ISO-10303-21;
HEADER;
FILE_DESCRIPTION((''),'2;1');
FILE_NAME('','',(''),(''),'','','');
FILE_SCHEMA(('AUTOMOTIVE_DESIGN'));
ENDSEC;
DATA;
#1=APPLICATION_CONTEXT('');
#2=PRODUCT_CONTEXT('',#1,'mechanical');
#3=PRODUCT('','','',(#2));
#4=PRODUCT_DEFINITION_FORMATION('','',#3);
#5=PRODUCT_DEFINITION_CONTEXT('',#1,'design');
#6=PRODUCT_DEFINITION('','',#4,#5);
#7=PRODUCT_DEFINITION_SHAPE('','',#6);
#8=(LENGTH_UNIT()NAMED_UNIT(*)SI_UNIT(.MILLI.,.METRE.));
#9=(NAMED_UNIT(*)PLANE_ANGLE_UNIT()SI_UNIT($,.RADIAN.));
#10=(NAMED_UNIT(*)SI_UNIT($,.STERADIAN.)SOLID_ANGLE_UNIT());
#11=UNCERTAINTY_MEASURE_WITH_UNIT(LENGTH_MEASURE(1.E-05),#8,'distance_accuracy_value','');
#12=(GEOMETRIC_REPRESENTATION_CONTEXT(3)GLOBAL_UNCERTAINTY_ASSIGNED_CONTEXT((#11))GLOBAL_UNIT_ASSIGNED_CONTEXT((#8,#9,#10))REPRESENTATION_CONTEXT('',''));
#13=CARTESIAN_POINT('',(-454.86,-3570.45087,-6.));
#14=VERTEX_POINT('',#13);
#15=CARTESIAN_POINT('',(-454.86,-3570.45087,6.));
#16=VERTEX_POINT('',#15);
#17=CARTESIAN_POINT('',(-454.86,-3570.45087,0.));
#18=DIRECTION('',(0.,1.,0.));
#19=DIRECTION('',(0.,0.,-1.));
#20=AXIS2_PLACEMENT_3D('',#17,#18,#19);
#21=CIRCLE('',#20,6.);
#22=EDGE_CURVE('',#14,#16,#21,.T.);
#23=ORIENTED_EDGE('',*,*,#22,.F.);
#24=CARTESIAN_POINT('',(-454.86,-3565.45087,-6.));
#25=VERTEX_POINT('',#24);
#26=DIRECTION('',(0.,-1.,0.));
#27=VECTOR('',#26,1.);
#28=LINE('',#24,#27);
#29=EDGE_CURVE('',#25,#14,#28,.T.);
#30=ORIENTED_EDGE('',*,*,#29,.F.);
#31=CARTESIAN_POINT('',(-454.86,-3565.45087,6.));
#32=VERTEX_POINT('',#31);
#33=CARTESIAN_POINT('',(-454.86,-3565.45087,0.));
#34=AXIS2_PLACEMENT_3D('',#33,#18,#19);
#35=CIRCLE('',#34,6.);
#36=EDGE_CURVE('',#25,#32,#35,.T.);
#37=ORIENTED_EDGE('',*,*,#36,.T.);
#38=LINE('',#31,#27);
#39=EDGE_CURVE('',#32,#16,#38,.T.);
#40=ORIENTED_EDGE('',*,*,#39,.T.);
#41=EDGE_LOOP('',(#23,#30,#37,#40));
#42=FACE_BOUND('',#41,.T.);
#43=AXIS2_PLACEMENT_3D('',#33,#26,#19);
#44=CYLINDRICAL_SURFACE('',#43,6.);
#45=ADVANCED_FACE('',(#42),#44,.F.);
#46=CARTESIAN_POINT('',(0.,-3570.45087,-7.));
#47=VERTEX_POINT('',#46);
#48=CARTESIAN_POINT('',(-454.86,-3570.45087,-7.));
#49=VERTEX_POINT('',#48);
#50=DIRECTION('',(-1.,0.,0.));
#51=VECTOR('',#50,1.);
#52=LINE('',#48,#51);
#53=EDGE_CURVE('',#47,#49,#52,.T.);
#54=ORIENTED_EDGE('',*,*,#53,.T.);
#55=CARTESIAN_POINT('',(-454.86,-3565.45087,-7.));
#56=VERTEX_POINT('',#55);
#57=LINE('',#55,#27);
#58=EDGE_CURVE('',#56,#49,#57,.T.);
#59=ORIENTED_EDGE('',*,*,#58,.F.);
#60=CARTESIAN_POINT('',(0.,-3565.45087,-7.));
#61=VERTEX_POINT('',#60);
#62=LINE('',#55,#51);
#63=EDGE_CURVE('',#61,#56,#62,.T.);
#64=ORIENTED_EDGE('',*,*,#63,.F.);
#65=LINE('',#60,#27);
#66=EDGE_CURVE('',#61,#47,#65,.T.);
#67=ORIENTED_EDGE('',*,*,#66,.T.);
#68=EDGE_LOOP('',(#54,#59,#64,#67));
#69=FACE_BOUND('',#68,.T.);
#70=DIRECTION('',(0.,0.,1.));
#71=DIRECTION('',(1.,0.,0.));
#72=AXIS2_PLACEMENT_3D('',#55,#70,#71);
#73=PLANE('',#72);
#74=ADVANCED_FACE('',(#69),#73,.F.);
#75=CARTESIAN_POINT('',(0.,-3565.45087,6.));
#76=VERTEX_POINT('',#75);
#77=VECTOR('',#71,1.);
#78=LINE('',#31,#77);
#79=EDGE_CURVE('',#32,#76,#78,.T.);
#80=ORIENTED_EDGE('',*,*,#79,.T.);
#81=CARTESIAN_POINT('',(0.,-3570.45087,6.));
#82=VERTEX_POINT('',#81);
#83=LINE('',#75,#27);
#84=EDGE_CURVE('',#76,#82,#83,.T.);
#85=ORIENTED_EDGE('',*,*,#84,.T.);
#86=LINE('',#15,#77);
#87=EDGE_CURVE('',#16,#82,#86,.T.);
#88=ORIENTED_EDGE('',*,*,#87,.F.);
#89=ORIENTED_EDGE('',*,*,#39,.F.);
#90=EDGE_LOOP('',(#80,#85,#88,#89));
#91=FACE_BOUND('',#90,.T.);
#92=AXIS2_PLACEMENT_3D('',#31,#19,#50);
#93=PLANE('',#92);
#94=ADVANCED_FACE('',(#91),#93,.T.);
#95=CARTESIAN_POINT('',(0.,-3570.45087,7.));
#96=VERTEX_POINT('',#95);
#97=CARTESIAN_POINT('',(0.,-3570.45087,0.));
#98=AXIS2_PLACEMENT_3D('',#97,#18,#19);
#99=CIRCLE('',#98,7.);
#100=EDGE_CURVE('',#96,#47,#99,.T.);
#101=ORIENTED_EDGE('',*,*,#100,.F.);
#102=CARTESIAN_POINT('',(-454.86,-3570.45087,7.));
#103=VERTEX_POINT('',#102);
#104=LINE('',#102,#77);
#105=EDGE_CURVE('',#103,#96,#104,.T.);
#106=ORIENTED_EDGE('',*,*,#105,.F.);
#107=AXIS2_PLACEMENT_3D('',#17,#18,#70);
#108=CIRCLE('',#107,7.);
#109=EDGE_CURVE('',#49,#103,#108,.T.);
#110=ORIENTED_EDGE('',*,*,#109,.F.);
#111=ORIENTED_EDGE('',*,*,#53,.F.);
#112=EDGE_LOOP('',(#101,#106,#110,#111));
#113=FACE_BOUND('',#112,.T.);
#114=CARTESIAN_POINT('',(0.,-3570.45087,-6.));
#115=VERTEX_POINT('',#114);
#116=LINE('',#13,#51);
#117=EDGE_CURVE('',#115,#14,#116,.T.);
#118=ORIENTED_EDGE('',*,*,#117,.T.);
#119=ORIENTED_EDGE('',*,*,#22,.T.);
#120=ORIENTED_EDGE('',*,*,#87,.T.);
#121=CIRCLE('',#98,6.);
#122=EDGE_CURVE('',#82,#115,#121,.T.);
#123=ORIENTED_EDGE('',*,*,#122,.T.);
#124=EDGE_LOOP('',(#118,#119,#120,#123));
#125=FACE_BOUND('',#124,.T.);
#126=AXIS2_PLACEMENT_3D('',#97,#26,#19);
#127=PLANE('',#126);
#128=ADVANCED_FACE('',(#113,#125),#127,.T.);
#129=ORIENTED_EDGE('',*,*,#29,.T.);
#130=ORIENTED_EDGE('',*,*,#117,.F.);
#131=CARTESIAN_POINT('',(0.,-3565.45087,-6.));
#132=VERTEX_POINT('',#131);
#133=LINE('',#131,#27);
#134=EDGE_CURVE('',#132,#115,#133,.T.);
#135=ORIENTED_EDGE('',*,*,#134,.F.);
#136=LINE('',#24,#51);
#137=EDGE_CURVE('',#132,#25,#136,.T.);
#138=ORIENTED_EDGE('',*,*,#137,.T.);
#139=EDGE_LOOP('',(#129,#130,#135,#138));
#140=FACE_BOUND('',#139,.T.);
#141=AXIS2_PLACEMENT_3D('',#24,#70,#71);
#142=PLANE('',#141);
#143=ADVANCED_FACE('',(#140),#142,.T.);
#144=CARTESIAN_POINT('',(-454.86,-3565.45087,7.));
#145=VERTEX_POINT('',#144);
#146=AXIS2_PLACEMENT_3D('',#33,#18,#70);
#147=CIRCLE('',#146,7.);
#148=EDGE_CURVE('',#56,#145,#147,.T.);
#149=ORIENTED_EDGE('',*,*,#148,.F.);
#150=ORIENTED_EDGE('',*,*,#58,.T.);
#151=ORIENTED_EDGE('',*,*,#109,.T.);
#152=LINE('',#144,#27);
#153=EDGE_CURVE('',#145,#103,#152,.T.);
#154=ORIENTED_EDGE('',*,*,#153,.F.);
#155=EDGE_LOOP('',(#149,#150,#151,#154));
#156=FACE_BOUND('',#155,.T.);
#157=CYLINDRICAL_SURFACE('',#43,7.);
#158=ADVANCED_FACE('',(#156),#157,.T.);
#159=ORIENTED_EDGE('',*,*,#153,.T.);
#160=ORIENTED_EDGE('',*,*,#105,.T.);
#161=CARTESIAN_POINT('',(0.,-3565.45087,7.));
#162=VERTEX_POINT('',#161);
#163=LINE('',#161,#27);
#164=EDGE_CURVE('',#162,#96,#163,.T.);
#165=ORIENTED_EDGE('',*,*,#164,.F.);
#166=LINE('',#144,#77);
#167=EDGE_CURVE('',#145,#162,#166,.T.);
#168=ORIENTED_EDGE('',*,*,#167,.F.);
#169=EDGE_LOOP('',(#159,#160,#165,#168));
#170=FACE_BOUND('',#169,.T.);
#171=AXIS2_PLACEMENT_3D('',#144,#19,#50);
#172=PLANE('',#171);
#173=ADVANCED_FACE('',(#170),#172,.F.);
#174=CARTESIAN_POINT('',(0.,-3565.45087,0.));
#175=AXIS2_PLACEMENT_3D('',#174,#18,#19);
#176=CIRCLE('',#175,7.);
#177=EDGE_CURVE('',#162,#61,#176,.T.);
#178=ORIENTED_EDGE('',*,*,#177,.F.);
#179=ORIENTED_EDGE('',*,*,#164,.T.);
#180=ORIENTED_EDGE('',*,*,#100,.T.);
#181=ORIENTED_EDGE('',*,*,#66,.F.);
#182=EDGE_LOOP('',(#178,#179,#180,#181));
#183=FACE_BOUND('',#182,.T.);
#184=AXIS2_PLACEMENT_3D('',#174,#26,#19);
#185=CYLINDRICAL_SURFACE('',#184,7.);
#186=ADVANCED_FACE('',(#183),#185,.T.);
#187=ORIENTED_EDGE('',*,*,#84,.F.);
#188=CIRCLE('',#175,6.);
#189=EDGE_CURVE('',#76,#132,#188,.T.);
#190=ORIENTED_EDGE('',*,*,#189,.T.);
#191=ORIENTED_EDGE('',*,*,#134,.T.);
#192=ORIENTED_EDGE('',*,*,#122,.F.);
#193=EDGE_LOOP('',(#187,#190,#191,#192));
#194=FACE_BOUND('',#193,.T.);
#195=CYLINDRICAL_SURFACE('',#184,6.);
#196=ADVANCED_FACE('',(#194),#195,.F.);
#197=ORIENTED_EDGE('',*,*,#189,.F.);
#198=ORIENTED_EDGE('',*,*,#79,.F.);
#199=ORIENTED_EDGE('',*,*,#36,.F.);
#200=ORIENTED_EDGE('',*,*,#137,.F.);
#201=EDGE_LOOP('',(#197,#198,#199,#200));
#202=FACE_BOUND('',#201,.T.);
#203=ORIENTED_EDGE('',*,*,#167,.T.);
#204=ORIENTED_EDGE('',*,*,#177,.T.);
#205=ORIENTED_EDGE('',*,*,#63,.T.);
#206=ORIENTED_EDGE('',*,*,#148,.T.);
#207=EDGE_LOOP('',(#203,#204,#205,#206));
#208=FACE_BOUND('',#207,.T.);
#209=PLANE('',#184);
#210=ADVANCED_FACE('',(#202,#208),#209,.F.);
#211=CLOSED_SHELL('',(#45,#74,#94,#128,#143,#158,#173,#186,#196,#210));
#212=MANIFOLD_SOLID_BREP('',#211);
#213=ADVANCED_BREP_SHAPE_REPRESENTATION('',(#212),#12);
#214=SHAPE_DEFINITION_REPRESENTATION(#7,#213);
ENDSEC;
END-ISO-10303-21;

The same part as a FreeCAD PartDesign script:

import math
import FreeCAD as App
import Part
import Sketcher
from FreeCAD import Vector
Q = App.Units.Quantity

doc = App.newDocument("Part")
body = doc.addObject("PartDesign::Body", "Body")

sketch1 = body.newObject("Sketcher::SketchObject", "Sketch")
sketch1.AttachmentSupport = (doc.getObject("XZ_Plane"), [""])
sketch1.MapMode = "FlatFace"
sketch1.AttachmentOffset = App.Placement(Vector(0, 0, 3570.45087), App.Rotation())
sketch1.addGeometry([
    Part.LineSegment(Vector(-455, 7, 0), Vector(0, 7, 0)),
    Part.ArcOfCircle(Part.Circle(Vector(0, 0, 0), Vector(0, 0, 1), 7), math.radians(-90), math.radians(90)),
    Part.LineSegment(Vector(0, -7, 0), Vector(-455, -7, 0)),
    Part.ArcOfCircle(Part.Circle(Vector(-455, 0, 0), Vector(0, 0, 1), 7), math.radians(90), math.radians(270)),
    Part.LineSegment(Vector(0, 6, 0), Vector(-455, 6, 0)),
    Part.ArcOfCircle(Part.Circle(Vector(-455, 0, 0), Vector(0, 0, 1), 6), math.radians(90), math.radians(270)),
    Part.LineSegment(Vector(-455, -6, 0), Vector(0, -6, 0)),
    Part.ArcOfCircle(Part.Circle(Vector(0, 0, 0), Vector(0, 0, 1), 6), math.radians(-90), math.radians(90)),
], False)
sketch1.addConstraint([
    Sketcher.Constraint("Tangent", 0, 2, 1, 2),
    Sketcher.Constraint("Tangent", 1, 1, 2, 1),
    Sketcher.Constraint("Tangent", 2, 2, 3, 2),
    Sketcher.Constraint("Tangent", 3, 1, 0, 1),
    Sketcher.Constraint("Tangent", 4, 2, 5, 1),
    Sketcher.Constraint("Tangent", 5, 2, 6, 1),
    Sketcher.Constraint("Tangent", 6, 2, 7, 1),
    Sketcher.Constraint("Tangent", 7, 2, 4, 1),
    Sketcher.Constraint("Horizontal", 0),
    Sketcher.Constraint("Horizontal", 2),
    Sketcher.Constraint("Horizontal", 4),
    Sketcher.Constraint("Horizontal", 6),
    Sketcher.Constraint("Coincident", 1, 3, -1, 1),
    Sketcher.Constraint("Coincident", 7, 3, -1, 1),
    Sketcher.Constraint("Vertical", 5, 3, 2, 2),
    Sketcher.Constraint("Radius", 1, Q("7 mm")),
    Sketcher.Constraint("Radius", 5, Q("6 mm")),
    Sketcher.Constraint("DistanceX", 0, 1, 0, 2, Q("454.86 mm")),
])
pad1 = body.newObject("PartDesign::Pad", "Pad")
pad1.Profile = sketch1
pad1.Length = 5
pad1.Reversed = True

doc.recompute()
